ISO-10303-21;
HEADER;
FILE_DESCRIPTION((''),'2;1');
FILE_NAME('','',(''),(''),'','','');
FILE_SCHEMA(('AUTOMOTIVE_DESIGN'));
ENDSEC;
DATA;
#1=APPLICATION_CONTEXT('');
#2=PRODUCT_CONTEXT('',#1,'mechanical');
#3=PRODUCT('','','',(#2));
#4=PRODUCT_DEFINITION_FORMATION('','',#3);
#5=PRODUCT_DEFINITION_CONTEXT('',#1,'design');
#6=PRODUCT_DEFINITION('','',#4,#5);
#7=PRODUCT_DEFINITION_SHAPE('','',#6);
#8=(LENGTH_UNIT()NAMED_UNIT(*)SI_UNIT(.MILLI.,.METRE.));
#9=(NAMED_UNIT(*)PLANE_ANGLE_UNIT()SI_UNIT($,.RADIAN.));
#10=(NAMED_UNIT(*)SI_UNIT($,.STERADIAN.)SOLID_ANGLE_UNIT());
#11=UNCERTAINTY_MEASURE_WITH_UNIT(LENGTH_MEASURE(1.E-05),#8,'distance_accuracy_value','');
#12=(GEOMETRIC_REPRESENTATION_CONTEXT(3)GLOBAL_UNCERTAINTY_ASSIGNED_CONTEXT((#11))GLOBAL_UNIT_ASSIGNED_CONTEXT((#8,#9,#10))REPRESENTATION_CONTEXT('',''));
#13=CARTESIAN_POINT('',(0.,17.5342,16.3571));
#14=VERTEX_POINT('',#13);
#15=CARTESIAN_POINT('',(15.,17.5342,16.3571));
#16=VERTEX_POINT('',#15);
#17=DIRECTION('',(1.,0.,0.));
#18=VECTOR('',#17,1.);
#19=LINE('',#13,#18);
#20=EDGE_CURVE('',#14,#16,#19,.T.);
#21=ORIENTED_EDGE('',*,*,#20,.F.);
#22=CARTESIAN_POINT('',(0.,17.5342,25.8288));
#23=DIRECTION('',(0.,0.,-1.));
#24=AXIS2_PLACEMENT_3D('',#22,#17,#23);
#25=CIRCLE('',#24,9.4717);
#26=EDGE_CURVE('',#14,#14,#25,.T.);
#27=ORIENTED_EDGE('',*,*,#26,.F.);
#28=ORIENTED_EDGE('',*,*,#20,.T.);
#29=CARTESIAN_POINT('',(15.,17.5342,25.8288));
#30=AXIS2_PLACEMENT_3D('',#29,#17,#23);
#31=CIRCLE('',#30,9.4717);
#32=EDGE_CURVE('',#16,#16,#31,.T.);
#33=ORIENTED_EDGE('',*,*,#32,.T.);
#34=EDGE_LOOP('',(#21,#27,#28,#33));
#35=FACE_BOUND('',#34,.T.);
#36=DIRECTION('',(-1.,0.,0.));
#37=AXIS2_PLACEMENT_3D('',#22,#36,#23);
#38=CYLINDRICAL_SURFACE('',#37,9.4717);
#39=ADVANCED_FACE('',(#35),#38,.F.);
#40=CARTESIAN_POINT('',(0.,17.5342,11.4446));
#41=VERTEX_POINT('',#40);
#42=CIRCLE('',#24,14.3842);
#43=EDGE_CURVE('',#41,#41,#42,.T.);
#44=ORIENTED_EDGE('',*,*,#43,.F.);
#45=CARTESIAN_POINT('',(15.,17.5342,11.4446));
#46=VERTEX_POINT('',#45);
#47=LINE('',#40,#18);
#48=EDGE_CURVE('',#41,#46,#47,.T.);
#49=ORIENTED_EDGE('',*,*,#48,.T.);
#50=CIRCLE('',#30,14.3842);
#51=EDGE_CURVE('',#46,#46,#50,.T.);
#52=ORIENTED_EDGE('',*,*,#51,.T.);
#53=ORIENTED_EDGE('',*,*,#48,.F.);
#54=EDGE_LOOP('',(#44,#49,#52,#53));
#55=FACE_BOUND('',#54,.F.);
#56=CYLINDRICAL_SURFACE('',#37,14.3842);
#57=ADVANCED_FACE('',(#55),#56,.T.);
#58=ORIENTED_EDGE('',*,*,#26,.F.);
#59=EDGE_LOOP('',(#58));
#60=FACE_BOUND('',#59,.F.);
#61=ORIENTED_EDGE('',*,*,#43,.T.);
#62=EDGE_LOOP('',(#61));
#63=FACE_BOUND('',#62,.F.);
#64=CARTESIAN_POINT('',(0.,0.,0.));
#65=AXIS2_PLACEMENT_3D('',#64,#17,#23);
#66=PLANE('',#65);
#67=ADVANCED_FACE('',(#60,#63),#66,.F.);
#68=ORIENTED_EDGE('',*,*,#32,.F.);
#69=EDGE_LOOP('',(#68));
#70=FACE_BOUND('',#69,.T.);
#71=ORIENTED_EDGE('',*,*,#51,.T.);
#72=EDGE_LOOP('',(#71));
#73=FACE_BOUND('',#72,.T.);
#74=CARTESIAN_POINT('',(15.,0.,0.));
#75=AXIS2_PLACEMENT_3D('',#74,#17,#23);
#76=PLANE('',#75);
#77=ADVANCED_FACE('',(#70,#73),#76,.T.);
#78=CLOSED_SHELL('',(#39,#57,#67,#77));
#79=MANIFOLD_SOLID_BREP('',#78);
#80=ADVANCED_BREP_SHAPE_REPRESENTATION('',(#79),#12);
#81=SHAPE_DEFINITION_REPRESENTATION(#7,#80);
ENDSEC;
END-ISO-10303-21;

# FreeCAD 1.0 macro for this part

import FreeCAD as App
import Part
import Sketcher

V = App.Vector
Q = App.Units.Quantity

doc = App.newDocument("Part")
body = doc.addObject("PartDesign::Body", "Body")

# Sketch on YZ plane
sketch1 = doc.addObject("Sketcher::SketchObject", "Sketch")
body.addObject(sketch1)
sketch1.AttachmentSupport = (doc.YZ_Plane, [""])
sketch1.MapMode = "FlatFace"
sketch1.addGeometry([
    Part.Circle(V(18, 26, 0), V(0, 0, 1), 14),
    Part.Circle(V(18, 26, 0), V(0, 0, 1), 9),
], False)
sketch1.addConstraint([
    Sketcher.Constraint("Coincident", 1, 3, 0, 3),
    Sketcher.Constraint("Diameter", 0, Q("28.7684 mm")),
    Sketcher.Constraint("Diameter", 1, Q("18.9434 mm")),
    Sketcher.Constraint("DistanceX", -1, 1, 0, 3, Q("17.5342 mm")),
    Sketcher.Constraint("DistanceY", -1, 1, 0, 3, Q("25.8288 mm")),
])
pad1 = doc.addObject("PartDesign::Pad", "Pad")
body.addObject(pad1)
pad1.Profile = sketch1
pad1.Length = 15

doc.recompute()
